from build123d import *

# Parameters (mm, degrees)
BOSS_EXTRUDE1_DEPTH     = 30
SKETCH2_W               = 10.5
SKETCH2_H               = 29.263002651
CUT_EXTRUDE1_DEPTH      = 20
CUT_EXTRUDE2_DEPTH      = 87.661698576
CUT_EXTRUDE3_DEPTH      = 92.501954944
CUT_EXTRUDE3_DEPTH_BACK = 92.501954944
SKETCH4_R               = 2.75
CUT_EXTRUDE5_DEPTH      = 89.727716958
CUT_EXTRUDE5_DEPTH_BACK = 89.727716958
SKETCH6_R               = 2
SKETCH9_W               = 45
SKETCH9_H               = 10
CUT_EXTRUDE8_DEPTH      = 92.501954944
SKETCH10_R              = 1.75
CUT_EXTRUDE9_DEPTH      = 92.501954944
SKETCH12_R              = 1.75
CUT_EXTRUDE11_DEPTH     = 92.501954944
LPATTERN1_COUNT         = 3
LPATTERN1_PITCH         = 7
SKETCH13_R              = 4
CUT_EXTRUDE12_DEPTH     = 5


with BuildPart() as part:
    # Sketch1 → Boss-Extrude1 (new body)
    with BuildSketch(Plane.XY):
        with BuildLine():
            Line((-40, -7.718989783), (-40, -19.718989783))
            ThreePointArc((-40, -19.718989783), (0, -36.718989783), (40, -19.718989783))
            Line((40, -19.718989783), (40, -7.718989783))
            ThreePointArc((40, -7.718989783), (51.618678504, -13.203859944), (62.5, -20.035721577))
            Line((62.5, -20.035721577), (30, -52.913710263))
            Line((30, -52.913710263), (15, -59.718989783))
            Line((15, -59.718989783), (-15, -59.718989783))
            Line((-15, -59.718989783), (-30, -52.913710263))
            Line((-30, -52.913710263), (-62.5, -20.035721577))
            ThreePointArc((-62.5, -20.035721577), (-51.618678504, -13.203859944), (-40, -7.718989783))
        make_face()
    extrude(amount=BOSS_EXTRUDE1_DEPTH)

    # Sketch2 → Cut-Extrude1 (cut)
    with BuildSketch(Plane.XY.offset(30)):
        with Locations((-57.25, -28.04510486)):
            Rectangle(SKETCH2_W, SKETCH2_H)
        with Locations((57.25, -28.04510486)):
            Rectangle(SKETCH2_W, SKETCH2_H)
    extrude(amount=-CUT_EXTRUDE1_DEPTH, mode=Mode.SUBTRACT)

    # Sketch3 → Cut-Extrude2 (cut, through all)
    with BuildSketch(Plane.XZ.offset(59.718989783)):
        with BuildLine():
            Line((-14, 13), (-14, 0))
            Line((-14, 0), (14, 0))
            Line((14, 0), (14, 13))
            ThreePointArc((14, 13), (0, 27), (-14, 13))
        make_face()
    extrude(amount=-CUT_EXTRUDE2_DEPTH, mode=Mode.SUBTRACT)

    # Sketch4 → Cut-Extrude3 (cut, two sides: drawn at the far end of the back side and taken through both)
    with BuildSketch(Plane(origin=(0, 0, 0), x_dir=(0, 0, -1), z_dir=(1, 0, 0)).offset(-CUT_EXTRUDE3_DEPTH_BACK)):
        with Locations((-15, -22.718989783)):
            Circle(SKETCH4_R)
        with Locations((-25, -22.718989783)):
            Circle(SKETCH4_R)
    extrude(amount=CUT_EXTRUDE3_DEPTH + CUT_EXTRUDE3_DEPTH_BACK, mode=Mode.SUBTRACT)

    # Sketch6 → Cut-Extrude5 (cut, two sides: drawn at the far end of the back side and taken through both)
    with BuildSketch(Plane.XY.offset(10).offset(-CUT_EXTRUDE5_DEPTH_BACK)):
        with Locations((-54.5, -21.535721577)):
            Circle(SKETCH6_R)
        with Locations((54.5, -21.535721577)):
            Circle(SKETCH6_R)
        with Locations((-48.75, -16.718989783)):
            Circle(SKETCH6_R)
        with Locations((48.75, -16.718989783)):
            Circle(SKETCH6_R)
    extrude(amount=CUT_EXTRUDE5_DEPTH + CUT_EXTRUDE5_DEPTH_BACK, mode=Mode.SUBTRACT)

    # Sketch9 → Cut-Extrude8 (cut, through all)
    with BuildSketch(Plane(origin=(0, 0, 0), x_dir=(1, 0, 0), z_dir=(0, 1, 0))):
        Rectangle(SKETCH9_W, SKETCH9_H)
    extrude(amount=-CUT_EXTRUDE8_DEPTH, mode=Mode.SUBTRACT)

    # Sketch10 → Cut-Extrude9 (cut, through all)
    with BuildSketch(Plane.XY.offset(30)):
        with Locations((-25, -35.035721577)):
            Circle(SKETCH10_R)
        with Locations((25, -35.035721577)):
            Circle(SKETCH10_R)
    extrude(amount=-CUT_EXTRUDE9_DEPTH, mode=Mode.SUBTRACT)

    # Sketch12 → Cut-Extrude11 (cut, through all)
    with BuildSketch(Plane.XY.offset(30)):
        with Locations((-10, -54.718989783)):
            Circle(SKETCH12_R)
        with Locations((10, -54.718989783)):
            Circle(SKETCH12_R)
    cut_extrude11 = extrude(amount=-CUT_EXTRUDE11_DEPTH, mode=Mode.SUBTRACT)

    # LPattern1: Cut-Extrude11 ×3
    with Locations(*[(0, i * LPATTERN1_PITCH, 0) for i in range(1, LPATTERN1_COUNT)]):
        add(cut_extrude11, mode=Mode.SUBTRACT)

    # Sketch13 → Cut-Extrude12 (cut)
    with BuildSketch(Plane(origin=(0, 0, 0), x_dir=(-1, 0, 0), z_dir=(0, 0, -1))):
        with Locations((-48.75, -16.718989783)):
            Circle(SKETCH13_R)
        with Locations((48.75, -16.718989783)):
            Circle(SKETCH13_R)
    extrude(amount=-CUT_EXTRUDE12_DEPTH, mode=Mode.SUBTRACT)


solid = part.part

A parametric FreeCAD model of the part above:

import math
import FreeCAD as App
import Part
import Sketcher
from FreeCAD import Vector
Q = App.Units.Quantity

doc = App.newDocument("Part")
body = doc.addObject("PartDesign::Body", "Body")

# Sketch on XY plane
sketch1 = doc.addObject("Sketcher::SketchObject", "Sketch")
body.addObject(sketch1)
sketch1.AttachmentSupport = (doc.XY_Plane, [""])
sketch1.MapMode = "FlatFace"
sketch1.addGeometry([
    Part.LineSegment(Vector(-40, -20, 0), Vector(-40, -8, 0)),  # 0
    Part.ArcOfCircle(Part.Circle(Vector(0, -108, 0), Vector(0, 0, 1), 108), math.radians(111.84), math.radians(125.55)),  # 1
    Part.LineSegment(Vector(-62, -20, 0), Vector(-30, -53, 0)),  # 2
    Part.LineSegment(Vector(-30, -53, 0), Vector(-15, -60, 0)),  # 3
    Part.LineSegment(Vector(-15, -60, 0), Vector(15, -60, 0)),  # 4
    Part.LineSegment(Vector(15, -60, 0), Vector(30, -53, 0)),  # 5
    Part.LineSegment(Vector(30, -53, 0), Vector(62, -20, 0)),  # 6
    Part.ArcOfCircle(Part.Circle(Vector(0, -108, 0), Vector(0, 0, 1), 108), math.radians(54.45), math.radians(68.16)),  # 7
    Part.LineSegment(Vector(40, -8, 0), Vector(40, -20, 0)),  # 8
    Part.ArcOfCircle(Part.Circle(Vector(0, 19, 0), Vector(0, 0, 1), 56), math.radians(-136), math.radians(-44)),  # 9
], False)
sketch1.addConstraint([
    Sketcher.Constraint("Coincident", 0, 2, 1, 1),
    Sketcher.Constraint("Coincident", 1, 2, 2, 1),
    Sketcher.Constraint("Coincident", 2, 2, 3, 1),
    Sketcher.Constraint("Coincident", 3, 2, 4, 1),
    Sketcher.Constraint("Coincident", 4, 2, 5, 1),
    Sketcher.Constraint("Coincident", 5, 2, 6, 1),
    Sketcher.Constraint("Coincident", 6, 2, 7, 1),
    Sketcher.Constraint("Coincident", 7, 2, 8, 1),
    Sketcher.Constraint("Coincident", 8, 2, 9, 2),
    Sketcher.Constraint("Coincident", 9, 1, 0, 1),
    Sketcher.Constraint("Vertical", 0),
    Sketcher.Constraint("Horizontal", 4),
    Sketcher.Constraint("Vertical", 8),
    Sketcher.Constraint("Coincident", 7, 3, 1, 3),
    Sketcher.Constraint("Equal", 1, 7),
    Sketcher.Constraint("Symmetric", 2, 2, 5, 2, -2),
    Sketcher.Constraint("Symmetric", 1, 2, 6, 2, -2),
    Sketcher.Constraint("Symmetric", 8, 2, 9, 1, -2),
    Sketcher.Constraint("Equal", 3, 5),
    Sketcher.Constraint("Radius", 1, Q("107.5 mm")),
    Sketcher.Constraint("DistanceX", 4, 1, 4, 2, Q("30 mm")),
    Sketcher.Constraint("DistanceY", 0, 1, 0, 2, Q("12 mm")),
    Sketcher.Constraint("DistanceX", 0, 2, -1, 1, Q("40 mm")),
    Sketcher.Constraint("DistanceX", 2, 2, -1, 1, Q("30 mm")),
    Sketcher.Constraint("DistanceY", 3, 2, 0, 2, Q("52 mm")),
    Sketcher.Constraint("DistanceY", 1, 3, -1, 1, Q("107.5 mm")),
    Sketcher.Constraint("DistanceX", 1, 2, -1, 1, Q("62.5 mm")),
    Sketcher.Constraint("Radius", 9, Q("55.558824 mm")),
    Sketcher.Constraint("Distance", 2, Q("46.229992 mm")),
])
pad1 = doc.addObject("PartDesign::Pad", "Pad")
body.addObject(pad1)
pad1.Profile = sketch1
pad1.Length = 30

# Sketch on XY plane
sketch2 = doc.addObject("Sketcher::SketchObject", "Sketch001")
body.addObject(sketch2)
sketch2.AttachmentSupport = (doc.XY_Plane, [""])
sketch2.MapMode = "FlatFace"
sketch2.AttachmentOffset = App.Placement(Vector(0, 0, 30), App.Rotation())
sketch2.addGeometry([
    Part.LineSegment(Vector(-62, -13, 0), Vector(-62, -43, 0)),  # 0
    Part.LineSegment(Vector(-62, -43, 0), Vector(-52, -43, 0)),  # 1
    Part.LineSegment(Vector(-52, -43, 0), Vector(-52, -13, 0)),  # 2
    Part.LineSegment(Vector(-52, -13, 0), Vector(-62, -13, 0)),  # 3
    Part.LineSegment(Vector(52, -13, 0), Vector(52, -43, 0)),  # 4
    Part.LineSegment(Vector(52, -43, 0), Vector(62, -43, 0)),  # 5
    Part.LineSegment(Vector(62, -43, 0), Vector(62, -13, 0)),  # 6
    Part.LineSegment(Vector(62, -13, 0), Vector(52, -13, 0)),  # 7
], False)
sketch2.addConstraint([
    Sketcher.Constraint("Coincident", 0, 2, 1, 1),
    Sketcher.Constraint("Coincident", 1, 2, 2, 1),
    Sketcher.Constraint("Coincident", 2, 2, 3, 1),
    Sketcher.Constraint("Coincident", 3, 2, 0, 1),
    Sketcher.Constraint("Coincident", 4, 2, 5, 1),
    Sketcher.Constraint("Coincident", 5, 2, 6, 1),
    Sketcher.Constraint("Coincident", 6, 2, 7, 1),
    Sketcher.Constraint("Coincident", 7, 2, 4, 1),
    Sketcher.Constraint("Vertical", 0),
    Sketcher.Constraint("Horizontal", 1),
    Sketcher.Constraint("Vertical", 2),
    Sketcher.Constraint("Horizontal", 3),
    Sketcher.Constraint("Vertical", 4),
    Sketcher.Constraint("Horizontal", 5),
    Sketcher.Constraint("Vertical", 6),
    Sketcher.Constraint("Horizontal", 7),
    Sketcher.Constraint("Symmetric", 1, 2, 4, 2, -2),
    Sketcher.Constraint("Symmetric", 3, 2, 6, 2, -2),
    Sketcher.Constraint("DistanceX", 1, 1, 1, 2, Q("10.5 mm")),
    Sketcher.Constraint("DistanceX", 1, 2, -1, 1, Q("52 mm")),
    Sketcher.Constraint("DistanceY", 0, 2, 0, 1, Q("29.263003 mm")),
    Sketcher.Constraint("DistanceY", 0, 2, -1, 1, Q("42.676606 mm")),
])
pocket1 = doc.addObject("PartDesign::Pocket", "Pocket")
body.addObject(pocket1)
pocket1.Profile = sketch2
pocket1.Length = 20

# Sketch on XZ plane
sketch3 = doc.addObject("Sketcher::SketchObject", "Sketch002")
body.addObject(sketch3)
sketch3.AttachmentSupport = (doc.XZ_Plane, [""])
sketch3.MapMode = "FlatFace"
sketch3.AttachmentOffset = App.Placement(Vector(0, 0, 59.71899), App.Rotation())
sketch3.addGeometry([
    Part.LineSegment(Vector(-14, 13, 0), Vector(-14, 0, 0)),
    Part.LineSegment(Vector(-14, 0, 0), Vector(14, 0, 0)),
    Part.LineSegment(Vector(14, 0, 0), Vector(14, 13, 0)),
    Part.ArcOfCircle(Part.Circle(Vector(0, 13, 0), Vector(0, 0, 1), 14), math.radians(0), math.radians(180)),
], False)
sketch3.addConstraint([
    Sketcher.Constraint("Coincident", 0, 2, 1, 1),
    Sketcher.Constraint("Coincident", 1, 2, 2, 1),
    Sketcher.Constraint("Tangent", 2, 2, 3, 1),
    Sketcher.Constraint("Tangent", 3, 2, 0, 1),
    Sketcher.Constraint("Vertical", 0),
    Sketcher.Constraint("Horizontal", 1),
    Sketcher.Constraint("Vertical", 2),
    Sketcher.Constraint("Symmetric", 0, 2, 1, 2, -1, 1),
    Sketcher.Constraint("Radius", 3, Q("14 mm")),
    Sketcher.Constraint("DistanceY", 0, 2, 0, 1, Q("13 mm")),
])
pocket2 = doc.addObject("PartDesign::Pocket", "Pocket001")
body.addObject(pocket2)
pocket2.Profile = sketch3
pocket2.Type = "ThroughAll"

# Sketch on YZ plane
sketch4 = doc.addObject("Sketcher::SketchObject", "Sketch003")
body.addObject(sketch4)
sketch4.AttachmentSupport = (doc.YZ_Plane, [""])
sketch4.MapMode = "FlatFace"
sketch4.addGeometry([
    Part.Circle(Vector(-22.7, 15, 0), Vector(0, 0, 1), 2.8),
    Part.Circle(Vector(-22.7, 25, 0), Vector(0, 0, 1), 2.8),
], False)
sketch4.addConstraint([
    Sketcher.Constraint("Equal", 0, 1),
    Sketcher.Constraint("Vertical", 0, 3, 1, 3),
    Sketcher.Constraint("Diameter", 0, Q("5.5 mm")),
    Sketcher.Constraint("DistanceY", -1, 1, 0, 3, Q("15 mm")),
    Sketcher.Constraint("DistanceY", -1, 1, 1, 3, Q("25 mm")),
    Sketcher.Constraint("DistanceX", 0, 3, -1, 1, Q("22.71899 mm")),
])
pocket3 = doc.addObject("PartDesign::Pocket", "Pocket002")
body.addObject(pocket3)
pocket3.Profile = sketch4
pocket3.Type = "ThroughAll"
pocket3.Midplane = True

# Sketch on XY plane
sketch5 = doc.addObject("Sketcher::SketchObject", "Sketch004")
body.addObject(sketch5)
sketch5.AttachmentSupport = (doc.XY_Plane, [""])
sketch5.MapMode = "FlatFace"
sketch5.AttachmentOffset = App.Placement(Vector(0, 0, 10), App.Rotation())
sketch5.addGeometry([
    Part.Circle(Vector(-54.5, -21.5, 0), Vector(0, 0, 1), 2),
    Part.Circle(Vector(54.5, -21.5, 0), Vector(0, 0, 1), 2),
    Part.Circle(Vector(-48.8, -16.7, 0), Vector(0, 0, 1), 2),
    Part.Circle(Vector(48.8, -16.7, 0), Vector(0, 0, 1), 2),
], False)
sketch5.addConstraint([
    Sketcher.Constraint("Equal", 0, 1),
    Sketcher.Constraint("Equal", 1, 2),
    Sketcher.Constraint("Equal", 2, 3),
    Sketcher.Constraint("Symmetric", 0, 3, 1, 3, -2),
    Sketcher.Constraint("Symmetric", 2, 3, 3, 3, -2),
    Sketcher.Constraint("Diameter", 0, Q("4 mm")),
    Sketcher.Constraint("DistanceX", 0, 3, 1, 3, Q("109 mm")),
    Sketcher.Constraint("DistanceX", 2, 3, 3, 3, Q("97.5 mm")),
    Sketcher.Constraint("DistanceY", 0, 3, -1, 1, Q("21.535722 mm")),
    Sketcher.Constraint("DistanceY", 2, 3, -1, 1, Q("16.71899 mm")),
])
pocket4 = doc.addObject("PartDesign::Pocket", "Pocket003")
body.addObject(pocket4)
pocket4.Profile = sketch5
pocket4.Type = "ThroughAll"
pocket4.Midplane = True

# Sketch on XZ plane
sketch6 = doc.addObject("Sketcher::SketchObject", "Sketch005")
body.addObject(sketch6)
sketch6.AttachmentSupport = (doc.XZ_Plane, [""])
sketch6.MapMode = "FlatFace"
sketch6.addGeometry([
    Part.LineSegment(Vector(-22, -5, 0), Vector(-22, 5, 0)),
    Part.LineSegment(Vector(-22, 5, 0), Vector(22, 5, 0)),
    Part.LineSegment(Vector(22, 5, 0), Vector(22, -5, 0)),
    Part.LineSegment(Vector(22, -5, 0), Vector(-22, -5, 0)),
], False)
sketch6.addConstraint([
    Sketcher.Constraint("Coincident", 0, 2, 1, 1),
    Sketcher.Constraint("Coincident", 1, 2, 2, 1),
    Sketcher.Constraint("Coincident", 2, 2, 3, 1),
    Sketcher.Constraint("Coincident", 3, 2, 0, 1),
    Sketcher.Constraint("Vertical", 0),
    Sketcher.Constraint("Horizontal", 1),
    Sketcher.Constraint("Vertical", 2),
    Sketcher.Constraint("Horizontal", 3),
    Sketcher.Constraint("Symmetric", 0, 2, 2, 2, -1, 1),
    Sketcher.Constraint("DistanceX", 1, 1, 1, 2, Q("45 mm")),
    Sketcher.Constraint("DistanceY", 0, 1, 0, 2, Q("10 mm")),
])
pocket5 = doc.addObject("PartDesign::Pocket", "Pocket004")
body.addObject(pocket5)
pocket5.Profile = sketch6
pocket5.Type = "ThroughAll"
pocket5.Reversed = True

# Sketch on XY plane
sketch7 = doc.addObject("Sketcher::SketchObject", "Sketch006")
body.addObject(sketch7)
sketch7.AttachmentSupport = (doc.XY_Plane, [""])
sketch7.MapMode = "FlatFace"
sketch7.AttachmentOffset = App.Placement(Vector(0, 0, 30), App.Rotation())
sketch7.addGeometry([
    Part.Circle(Vector(-25, -35, 0), Vector(0, 0, 1), 1.8),
    Part.Circle(Vector(25, -35, 0), Vector(0, 0, 1), 1.8),
], False)
sketch7.addConstraint([
    Sketcher.Constraint("Equal", 0, 1),
    Sketcher.Constraint("Symmetric", 0, 3, 1, 3, -2),
    Sketcher.Constraint("Diameter", 0, Q("3.5 mm")),
    Sketcher.Constraint("DistanceX", 0, 3, -1, 1, Q("25 mm")),
    Sketcher.Constraint("DistanceY", 0, 3, -1, 1, Q("35.035722 mm")),
])
pocket6 = doc.addObject("PartDesign::Pocket", "Pocket005")
body.addObject(pocket6)
pocket6.Profile = sketch7
pocket6.Type = "ThroughAll"

# Sketch on XY plane
sketch8 = doc.addObject("Sketcher::SketchObject", "Sketch007")
body.addObject(sketch8)
sketch8.AttachmentSupport = (doc.XY_Plane, [""])
sketch8.MapMode = "FlatFace"
sketch8.AttachmentOffset = App.Placement(Vector(0, 0, 30), App.Rotation())
sketch8.addGeometry([
    Part.Circle(Vector(-10, -54.7, 0), Vector(0, 0, 1), 1.8),
    Part.Circle(Vector(10, -54.7, 0), Vector(0, 0, 1), 1.8),
], False)
sketch8.addConstraint([
    Sketcher.Constraint("Equal", 0, 1),
    Sketcher.Constraint("Symmetric", 0, 3, 1, 3, -2),
    Sketcher.Constraint("Diameter", 0, Q("3.5 mm")),
    Sketcher.Constraint("DistanceX", 0, 3, -1, 1, Q("10 mm")),
    Sketcher.Constraint("DistanceY", 0, 3, -1, 1, Q("54.71899 mm")),
])
pocket7 = doc.addObject("PartDesign::Pocket", "Pocket006")
body.addObject(pocket7)
pocket7.Profile = sketch8
pocket7.Type = "ThroughAll"
doc.recompute()

linearpattern = doc.addObject("PartDesign::LinearPattern", "LinearPattern")
body.addObject(linearpattern)
linearpattern.Originals = [pocket7]
linearpattern.Direction = (doc.Y_Axis, [""])
linearpattern.Mode = "offset"
linearpattern.Offset = 7
linearpattern.Occurrences = 3
body.Tip = linearpattern

# Sketch on XY plane
sketch9 = doc.addObject("Sketcher::SketchObject", "Sketch008")
body.addObject(sketch9)
sketch9.AttachmentSupport = (doc.XY_Plane, [""])
sketch9.MapMode = "FlatFace"
sketch9.addGeometry([
    Part.Circle(Vector(48.8, -16.7, 0), Vector(0, 0, 1), 4),
    Part.Circle(Vector(-48.8, -16.7, 0), Vector(0, 0, 1), 4),
], False)
sketch9.addConstraint([
    Sketcher.Constraint("Equal", 0, 1),
    Sketcher.Constraint("Symmetric", 0, 3, 1, 3, -2),
    Sketcher.Constraint("Diameter", 0, Q("8 mm")),
    Sketcher.Constraint("DistanceX", 1, 3, 0, 3, Q("97.5 mm")),
    Sketcher.Constraint("DistanceY", 0, 3, -1, 1, Q("16.71899 mm")),
])
pocket8 = doc.addObject("PartDesign::Pocket", "Pocket007")
body.addObject(pocket8)
pocket8.Profile = sketch9
pocket8.Length = 5
pocket8.Reversed = True

doc.recompute()
